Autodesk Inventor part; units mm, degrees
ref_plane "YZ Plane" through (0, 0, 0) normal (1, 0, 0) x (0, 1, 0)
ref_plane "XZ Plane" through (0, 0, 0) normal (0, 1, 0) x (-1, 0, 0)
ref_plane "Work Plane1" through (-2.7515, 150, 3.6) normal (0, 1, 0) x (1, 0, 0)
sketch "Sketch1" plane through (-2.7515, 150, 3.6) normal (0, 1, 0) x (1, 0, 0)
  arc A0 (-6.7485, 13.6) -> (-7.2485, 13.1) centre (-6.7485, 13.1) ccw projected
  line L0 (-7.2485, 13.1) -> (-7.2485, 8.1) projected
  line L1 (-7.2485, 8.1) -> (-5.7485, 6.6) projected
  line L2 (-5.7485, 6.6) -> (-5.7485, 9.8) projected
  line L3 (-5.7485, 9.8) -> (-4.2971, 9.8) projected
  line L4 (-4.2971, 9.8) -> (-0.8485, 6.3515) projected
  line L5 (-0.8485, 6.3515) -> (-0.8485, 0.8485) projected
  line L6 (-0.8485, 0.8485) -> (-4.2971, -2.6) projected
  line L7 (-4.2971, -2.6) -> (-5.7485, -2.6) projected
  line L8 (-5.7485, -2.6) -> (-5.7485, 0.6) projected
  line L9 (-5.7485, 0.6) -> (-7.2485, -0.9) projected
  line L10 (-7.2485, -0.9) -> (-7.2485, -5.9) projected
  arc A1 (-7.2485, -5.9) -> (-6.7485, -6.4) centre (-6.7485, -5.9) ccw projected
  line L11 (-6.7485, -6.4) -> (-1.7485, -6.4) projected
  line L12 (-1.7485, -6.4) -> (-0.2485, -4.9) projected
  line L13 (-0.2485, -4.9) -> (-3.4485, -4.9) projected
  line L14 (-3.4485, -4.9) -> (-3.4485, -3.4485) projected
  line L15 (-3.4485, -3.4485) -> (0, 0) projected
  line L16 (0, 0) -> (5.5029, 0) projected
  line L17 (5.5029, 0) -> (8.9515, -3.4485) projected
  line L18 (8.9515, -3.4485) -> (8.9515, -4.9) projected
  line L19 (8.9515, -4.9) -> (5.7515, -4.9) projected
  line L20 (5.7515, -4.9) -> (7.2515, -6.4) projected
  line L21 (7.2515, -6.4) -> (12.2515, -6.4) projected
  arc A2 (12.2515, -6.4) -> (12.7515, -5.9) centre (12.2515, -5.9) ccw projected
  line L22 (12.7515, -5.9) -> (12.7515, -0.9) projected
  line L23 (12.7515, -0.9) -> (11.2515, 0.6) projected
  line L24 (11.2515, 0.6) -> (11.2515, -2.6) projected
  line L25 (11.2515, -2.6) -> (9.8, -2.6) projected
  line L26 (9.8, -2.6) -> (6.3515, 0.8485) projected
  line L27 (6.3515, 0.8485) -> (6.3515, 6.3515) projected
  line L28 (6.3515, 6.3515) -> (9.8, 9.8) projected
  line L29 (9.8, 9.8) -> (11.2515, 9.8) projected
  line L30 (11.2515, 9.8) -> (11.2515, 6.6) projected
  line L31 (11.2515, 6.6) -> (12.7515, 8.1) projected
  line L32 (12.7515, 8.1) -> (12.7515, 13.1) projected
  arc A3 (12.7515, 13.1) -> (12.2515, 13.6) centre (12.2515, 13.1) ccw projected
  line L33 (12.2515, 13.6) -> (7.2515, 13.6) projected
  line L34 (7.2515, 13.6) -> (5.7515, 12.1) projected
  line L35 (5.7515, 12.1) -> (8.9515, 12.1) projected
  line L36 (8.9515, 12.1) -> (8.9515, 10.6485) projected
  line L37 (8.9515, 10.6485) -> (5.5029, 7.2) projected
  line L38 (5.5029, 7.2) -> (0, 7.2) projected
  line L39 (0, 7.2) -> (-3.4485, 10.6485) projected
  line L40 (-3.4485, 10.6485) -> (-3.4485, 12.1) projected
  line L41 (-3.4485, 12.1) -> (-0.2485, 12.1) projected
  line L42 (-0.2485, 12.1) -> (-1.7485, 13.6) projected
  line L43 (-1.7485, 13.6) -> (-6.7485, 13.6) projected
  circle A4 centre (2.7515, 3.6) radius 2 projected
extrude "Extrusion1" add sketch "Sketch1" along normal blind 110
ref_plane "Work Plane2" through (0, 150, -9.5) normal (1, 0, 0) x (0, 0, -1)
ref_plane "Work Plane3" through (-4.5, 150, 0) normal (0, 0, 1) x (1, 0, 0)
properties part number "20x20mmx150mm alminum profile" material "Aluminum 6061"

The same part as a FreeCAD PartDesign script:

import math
import FreeCAD as App
import Part
import Sketcher
from FreeCAD import Vector
Q = App.Units.Quantity

doc = App.newDocument("Part")
body = doc.addObject("PartDesign::Body", "Body")

# Sketch on XZ plane
sketch1 = doc.addObject("Sketcher::SketchObject", "Sketch")
body.addObject(sketch1)
sketch1.AttachmentSupport = (doc.XZ_Plane, [""])
sketch1.MapMode = "FlatFace"
sketch1.AttachmentOffset = App.Placement(Vector(0, 0, -150), App.Rotation())
sketch1.addGeometry([
    Part.LineSegment(Vector(-4.5, -10, 0), Vector(-9.5, -10, 0)),  # 0
    Part.ArcOfCircle(Part.Circle(Vector(-9.5, -9.5, 0), Vector(0, 0, 1), 0.5), math.radians(180), math.radians(270)),  # 1
    Part.LineSegment(Vector(-10, -9.5, 0), Vector(-10, -4.5, 0)),  # 2
    Part.LineSegment(Vector(-10, -4.5, 0), Vector(-8.5, -3, 0)),  # 3
    Part.LineSegment(Vector(-8.5, -3, 0), Vector(-8.5, -6.2, 0)),  # 4
    Part.LineSegment(Vector(-8.5, -6.2, 0), Vector(-7.0486, -6.2, 0)),  # 5
    Part.LineSegment(Vector(-7.0486, -6.2, 0), Vector(-3.6, -2.7515, 0)),  # 6
    Part.LineSegment(Vector(-3.6, -2.7515, 0), Vector(-3.6, 2.7515, 0)),  # 7
    Part.LineSegment(Vector(-3.6, 2.7515, 0), Vector(-7.0486, 6.2, 0)),  # 8
    Part.LineSegment(Vector(-7.0486, 6.2, 0), Vector(-8.5, 6.2, 0)),  # 9
    Part.LineSegment(Vector(-8.5, 6.2, 0), Vector(-8.5, 3, 0)),  # 10
    Part.LineSegment(Vector(-8.5, 3, 0), Vector(-10, 4.5, 0)),  # 11
    Part.LineSegment(Vector(-10, 4.5, 0), Vector(-10, 9.5, 0)),  # 12
    Part.ArcOfCircle(Part.Circle(Vector(-9.5, 9.5, 0), Vector(0, 0, 1), 0.5), math.radians(90), math.radians(180)),  # 13
    Part.LineSegment(Vector(-9.5, 10, 0), Vector(-4.5, 10, 0)),  # 14
    Part.LineSegment(Vector(-4.5, 10, 0), Vector(-3, 8.5, 0)),  # 15
    Part.LineSegment(Vector(-3, 8.5, 0), Vector(-6.2, 8.5, 0)),  # 16
    Part.LineSegment(Vector(-6.2, 8.5, 0), Vector(-6.2, 7.0485, 0)),  # 17
    Part.LineSegment(Vector(-6.2, 7.0485, 0), Vector(-2.7515, 3.6, 0)),  # 18
    Part.LineSegment(Vector(-2.7515, 3.6, 0), Vector(2.7514, 3.6, 0)),  # 19
    Part.LineSegment(Vector(2.7514, 3.6, 0), Vector(6.2, 7.0485, 0)),  # 20
    Part.LineSegment(Vector(6.2, 7.0485, 0), Vector(6.2, 8.5, 0)),  # 21
    Part.LineSegment(Vector(6.2, 8.5, 0), Vector(3, 8.5, 0)),  # 22
    Part.LineSegment(Vector(3, 8.5, 0), Vector(4.5, 10, 0)),  # 23
    Part.LineSegment(Vector(4.5, 10, 0), Vector(9.5, 10, 0)),  # 24
    Part.ArcOfCircle(Part.Circle(Vector(9.5, 9.5, 0), Vector(0, 0, 1), 0.5), math.radians(0), math.radians(90)),  # 25
    Part.LineSegment(Vector(10, 9.5, 0), Vector(10, 4.5, 0)),  # 26
    Part.LineSegment(Vector(10, 4.5, 0), Vector(8.5, 3, 0)),  # 27
    Part.LineSegment(Vector(8.5, 3, 0), Vector(8.5, 6.2, 0)),  # 28
    Part.LineSegment(Vector(8.5, 6.2, 0), Vector(7.0485, 6.2, 0)),  # 29
    Part.LineSegment(Vector(7.0485, 6.2, 0), Vector(3.6, 2.7515, 0)),  # 30
    Part.LineSegment(Vector(3.6, 2.7515, 0), Vector(3.6, -2.7515, 0)),  # 31
    Part.LineSegment(Vector(3.6, -2.7515, 0), Vector(7.0485, -6.2, 0)),  # 32
    Part.LineSegment(Vector(7.0485, -6.2, 0), Vector(8.5, -6.2, 0)),  # 33
    Part.LineSegment(Vector(8.5, -6.2, 0), Vector(8.5, -3, 0)),  # 34
    Part.LineSegment(Vector(8.5, -3, 0), Vector(10, -4.5, 0)),  # 35
    Part.LineSegment(Vector(10, -4.5, 0), Vector(10, -9.5, 0)),  # 36
    Part.ArcOfCircle(Part.Circle(Vector(9.5, -9.5, 0), Vector(0, 0, 1), 0.5), math.radians(-90), math.radians(0)),  # 37
    Part.LineSegment(Vector(9.5, -10, 0), Vector(4.5, -10, 0)),  # 38
    Part.LineSegment(Vector(4.5, -10, 0), Vector(3, -8.5, 0)),  # 39
    Part.LineSegment(Vector(3, -8.5, 0), Vector(6.2, -8.5, 0)),  # 40
    Part.LineSegment(Vector(6.2, -8.5, 0), Vector(6.2, -7.0485, 0)),  # 41
    Part.LineSegment(Vector(6.2, -7.0485, 0), Vector(2.7514, -3.6, 0)),  # 42
    Part.LineSegment(Vector(2.7514, -3.6, 0), Vector(-2.7515, -3.6, 0)),  # 43
    Part.LineSegment(Vector(-2.7515, -3.6, 0), Vector(-6.2, -7.0485, 0)),  # 44
    Part.LineSegment(Vector(-6.2, -7.0485, 0), Vector(-6.2, -8.5, 0)),  # 45
    Part.LineSegment(Vector(-6.2, -8.5, 0), Vector(-3, -8.5, 0)),  # 46
    Part.LineSegment(Vector(-3, -8.5, 0), Vector(-4.5, -10, 0)),  # 47
    Part.Circle(Vector(0, 0, 0), Vector(0, 0, 1), 2),  # 48
], False)
sketch1.addConstraint([
    Sketcher.Constraint("Tangent", 0, 2, 1, 2),
    Sketcher.Constraint("Tangent", 1, 1, 2, 1),
    Sketcher.Constraint("Coincident", 2, 2, 3, 1),
    Sketcher.Constraint("Coincident", 3, 2, 4, 1),
    Sketcher.Constraint("Coincident", 4, 2, 5, 1),
    Sketcher.Constraint("Coincident", 5, 2, 6, 1),
    Sketcher.Constraint("Coincident", 6, 2, 7, 1),
    Sketcher.Constraint("Coincident", 7, 2, 8, 1),
    Sketcher.Constraint("Coincident", 8, 2, 9, 1),
    Sketcher.Constraint("Coincident", 9, 2, 10, 1),
    Sketcher.Constraint("Coincident", 10, 2, 11, 1),
    Sketcher.Constraint("Coincident", 11, 2, 12, 1),
    Sketcher.Constraint("Tangent", 12, 2, 13, 2),
    Sketcher.Constraint("Tangent", 13, 1, 14, 1),
    Sketcher.Constraint("Coincident", 14, 2, 15, 1),
    Sketcher.Constraint("Coincident", 15, 2, 16, 1),
    Sketcher.Constraint("Coincident", 16, 2, 17, 1),
    Sketcher.Constraint("Coincident", 17, 2, 18, 1),
    Sketcher.Constraint("Coincident", 18, 2, 19, 1),
    Sketcher.Constraint("Coincident", 19, 2, 20, 1),
    Sketcher.Constraint("Coincident", 20, 2, 21, 1),
    Sketcher.Constraint("Coincident", 21, 2, 22, 1),
    Sketcher.Constraint("Coincident", 22, 2, 23, 1),
    Sketcher.Constraint("Coincident", 23, 2, 24, 1),
    Sketcher.Constraint("Tangent", 24, 2, 25, 2),
    Sketcher.Constraint("Tangent", 25, 1, 26, 1),
    Sketcher.Constraint("Coincident", 26, 2, 27, 1),
    Sketcher.Constraint("Coincident", 27, 2, 28, 1),
    Sketcher.Constraint("Coincident", 28, 2, 29, 1),
    Sketcher.Constraint("Coincident", 29, 2, 30, 1),
    Sketcher.Constraint("Coincident", 30, 2, 31, 1),
    Sketcher.Constraint("Coincident", 31, 2, 32, 1),
    Sketcher.Constraint("Coincident", 32, 2, 33, 1),
    Sketcher.Constraint("Coincident", 33, 2, 34, 1),
    Sketcher.Constraint("Coincident", 34, 2, 35, 1),
    Sketcher.Constraint("Coincident", 35, 2, 36, 1),
    Sketcher.Constraint("Tangent", 36, 2, 37, 2),
    Sketcher.Constraint("Tangent", 37, 1, 38, 1),
    Sketcher.Constraint("Coincident", 38, 2, 39, 1),
    Sketcher.Constraint("Coincident", 39, 2, 40, 1),
    Sketcher.Constraint("Coincident", 40, 2, 41, 1),
    Sketcher.Constraint("Coincident", 41, 2, 42, 1),
    Sketcher.Constraint("Coincident", 42, 2, 43, 1),
    Sketcher.Constraint("Coincident", 43, 2, 44, 1),
    Sketcher.Constraint("Coincident", 44, 2, 45, 1),
    Sketcher.Constraint("Coincident", 45, 2, 46, 1),
    Sketcher.Constraint("Coincident", 46, 2, 47, 1),
    Sketcher.Constraint("Coincident", 47, 2, 0, 1),
    Sketcher.Constraint("Horizontal", 0),
    Sketcher.Constraint("Vertical", 2),
    Sketcher.Constraint("Vertical", 4),
    Sketcher.Constraint("Horizontal", 5),
    Sketcher.Constraint("Vertical", 7),
    Sketcher.Constraint("Horizontal", 9),
    Sketcher.Constraint("Vertical", 10),
    Sketcher.Constraint("Vertical", 12),
    Sketcher.Constraint("Horizontal", 14),
    Sketcher.Constraint("Horizontal", 16),
    Sketcher.Constraint("Vertical", 17),
    Sketcher.Constraint("Horizontal", 19),
    Sketcher.Constraint("Vertical", 21),
    Sketcher.Constraint("Horizontal", 22),
    Sketcher.Constraint("Horizontal", 24),
    Sketcher.Constraint("Vertical", 26),
    Sketcher.Constraint("Vertical", 28),
    Sketcher.Constraint("Horizontal", 29),
    Sketcher.Constraint("Vertical", 31),
    Sketcher.Constraint("Horizontal", 33),
    Sketcher.Constraint("Vertical", 34),
    Sketcher.Constraint("Vertical", 36),
    Sketcher.Constraint("Horizontal", 38),
    Sketcher.Constraint("Horizontal", 40),
    Sketcher.Constraint("Vertical", 41),
    Sketcher.Constraint("Horizontal", 43),
    Sketcher.Constraint("Vertical", 45),
    Sketcher.Constraint("Horizontal", 46),
    Sketcher.Constraint("Coincident", 48, 3, -1, 1),
    Sketcher.Constraint("Equal", 1, 13),
    Sketcher.Constraint("Equal", 13, 25),
    Sketcher.Constraint("Equal", 25, 37),
    Sketcher.Constraint("Symmetric", 1, 3, 25, 3, -1, 1),
    Sketcher.Constraint("Symmetric", 13, 3, 37, 3, -1, 1),
    Sketcher.Constraint("Symmetric", 3, 2, 27, 2, -1, 1),
    Sketcher.Constraint("Symmetric", 5, 2, 29, 2, -1, 1),
    Sketcher.Constraint("Symmetric", 6, 2, 30, 2, -1, 1),
    Sketcher.Constraint("Symmetric", 8, 2, 32, 2, -1, 1),
    Sketcher.Constraint("Symmetric", 10, 2, 34, 2, -1, 1),
    Sketcher.Constraint("Symmetric", 15, 2, 39, 2, -1, 1),
    Sketcher.Constraint("Symmetric", 17, 2, 41, 2, -1, 1),
    Sketcher.Constraint("Symmetric", 18, 2, 42, 2, -1, 1),
    Sketcher.Constraint("Symmetric", 20, 2, 44, 2, -1, 1),
    Sketcher.Constraint("Symmetric", 22, 2, 46, 2, -1, 1),
    Sketcher.Constraint("Symmetric", 13, 3, 25, 3, -2),
    Sketcher.Constraint("Symmetric", 17, 2, 20, 2, -2),
    Sketcher.Constraint("Symmetric", 15, 2, 22, 2, -2),
    Sketcher.Constraint("Symmetric", 10, 2, 27, 2, -2),
    Sketcher.Constraint("Symmetric", 8, 2, 29, 2, -2),
    Sketcher.Constraint("Parallel", 3, 6),
    Sketcher.Constraint("Perpendicular", 6, 8),
    Sketcher.Constraint("Parallel", 8, 11),
    Sketcher.Constraint("Parallel", 11, 15),
    Sketcher.Constraint("Parallel", 15, 18),
    Sketcher.Constraint("Perpendicular", 18, 20),
    Sketcher.Constraint("Parallel", 20, 23),
    Sketcher.Constraint("Parallel", 23, 27),
    Sketcher.Constraint("Perpendicular", 30, 32),
    Sketcher.Constraint("Parallel", 32, 35),
    Sketcher.Constraint("Parallel", 35, 39),
    Sketcher.Constraint("Perpendicular", 42, 44),
    Sketcher.Constraint("Parallel", 44, 47),
    Sketcher.Constraint("Horizontal", 11, 2, 26, 2),
    Sketcher.Constraint("Equal", 38, 2),
    Sketcher.Constraint("Equal", 46, 4),
    Sketcher.Constraint("Equal", 43, 7),
    Sketcher.Constraint("Equal", 33, 17),
    Sketcher.Constraint("Equal", 11, 15),
    Sketcher.Constraint("Equal", 8, 18),
    Sketcher.Constraint("Diameter", 48, Q("4 mm")),
    Sketcher.Constraint("Radius", 1, Q("0.5 mm")),
    Sketcher.Constraint("DistanceX", 0, 2, 0, 1, Q("5 mm")),
    Sketcher.Constraint("DistanceX", 16, 2, 16, 1, Q("3.2 mm")),
    Sketcher.Constraint("DistanceY", 0, 2, -1, 1, Q("10 mm")),
    Sketcher.Constraint("DistanceY", 3, 2, -1, 1, Q("3 mm")),
    Sketcher.Constraint("DistanceX", 6, 2, -1, 1, Q("3.6 mm")),
    Sketcher.Constraint("DistanceX", 19, 1, 19, 2, Q("5.503 mm")),
])
pad1 = doc.addObject("PartDesign::Pad", "Pad")
body.addObject(pad1)
pad1.Profile = sketch1
pad1.Length = 110
pad1.Reversed = True

doc.recompute()
